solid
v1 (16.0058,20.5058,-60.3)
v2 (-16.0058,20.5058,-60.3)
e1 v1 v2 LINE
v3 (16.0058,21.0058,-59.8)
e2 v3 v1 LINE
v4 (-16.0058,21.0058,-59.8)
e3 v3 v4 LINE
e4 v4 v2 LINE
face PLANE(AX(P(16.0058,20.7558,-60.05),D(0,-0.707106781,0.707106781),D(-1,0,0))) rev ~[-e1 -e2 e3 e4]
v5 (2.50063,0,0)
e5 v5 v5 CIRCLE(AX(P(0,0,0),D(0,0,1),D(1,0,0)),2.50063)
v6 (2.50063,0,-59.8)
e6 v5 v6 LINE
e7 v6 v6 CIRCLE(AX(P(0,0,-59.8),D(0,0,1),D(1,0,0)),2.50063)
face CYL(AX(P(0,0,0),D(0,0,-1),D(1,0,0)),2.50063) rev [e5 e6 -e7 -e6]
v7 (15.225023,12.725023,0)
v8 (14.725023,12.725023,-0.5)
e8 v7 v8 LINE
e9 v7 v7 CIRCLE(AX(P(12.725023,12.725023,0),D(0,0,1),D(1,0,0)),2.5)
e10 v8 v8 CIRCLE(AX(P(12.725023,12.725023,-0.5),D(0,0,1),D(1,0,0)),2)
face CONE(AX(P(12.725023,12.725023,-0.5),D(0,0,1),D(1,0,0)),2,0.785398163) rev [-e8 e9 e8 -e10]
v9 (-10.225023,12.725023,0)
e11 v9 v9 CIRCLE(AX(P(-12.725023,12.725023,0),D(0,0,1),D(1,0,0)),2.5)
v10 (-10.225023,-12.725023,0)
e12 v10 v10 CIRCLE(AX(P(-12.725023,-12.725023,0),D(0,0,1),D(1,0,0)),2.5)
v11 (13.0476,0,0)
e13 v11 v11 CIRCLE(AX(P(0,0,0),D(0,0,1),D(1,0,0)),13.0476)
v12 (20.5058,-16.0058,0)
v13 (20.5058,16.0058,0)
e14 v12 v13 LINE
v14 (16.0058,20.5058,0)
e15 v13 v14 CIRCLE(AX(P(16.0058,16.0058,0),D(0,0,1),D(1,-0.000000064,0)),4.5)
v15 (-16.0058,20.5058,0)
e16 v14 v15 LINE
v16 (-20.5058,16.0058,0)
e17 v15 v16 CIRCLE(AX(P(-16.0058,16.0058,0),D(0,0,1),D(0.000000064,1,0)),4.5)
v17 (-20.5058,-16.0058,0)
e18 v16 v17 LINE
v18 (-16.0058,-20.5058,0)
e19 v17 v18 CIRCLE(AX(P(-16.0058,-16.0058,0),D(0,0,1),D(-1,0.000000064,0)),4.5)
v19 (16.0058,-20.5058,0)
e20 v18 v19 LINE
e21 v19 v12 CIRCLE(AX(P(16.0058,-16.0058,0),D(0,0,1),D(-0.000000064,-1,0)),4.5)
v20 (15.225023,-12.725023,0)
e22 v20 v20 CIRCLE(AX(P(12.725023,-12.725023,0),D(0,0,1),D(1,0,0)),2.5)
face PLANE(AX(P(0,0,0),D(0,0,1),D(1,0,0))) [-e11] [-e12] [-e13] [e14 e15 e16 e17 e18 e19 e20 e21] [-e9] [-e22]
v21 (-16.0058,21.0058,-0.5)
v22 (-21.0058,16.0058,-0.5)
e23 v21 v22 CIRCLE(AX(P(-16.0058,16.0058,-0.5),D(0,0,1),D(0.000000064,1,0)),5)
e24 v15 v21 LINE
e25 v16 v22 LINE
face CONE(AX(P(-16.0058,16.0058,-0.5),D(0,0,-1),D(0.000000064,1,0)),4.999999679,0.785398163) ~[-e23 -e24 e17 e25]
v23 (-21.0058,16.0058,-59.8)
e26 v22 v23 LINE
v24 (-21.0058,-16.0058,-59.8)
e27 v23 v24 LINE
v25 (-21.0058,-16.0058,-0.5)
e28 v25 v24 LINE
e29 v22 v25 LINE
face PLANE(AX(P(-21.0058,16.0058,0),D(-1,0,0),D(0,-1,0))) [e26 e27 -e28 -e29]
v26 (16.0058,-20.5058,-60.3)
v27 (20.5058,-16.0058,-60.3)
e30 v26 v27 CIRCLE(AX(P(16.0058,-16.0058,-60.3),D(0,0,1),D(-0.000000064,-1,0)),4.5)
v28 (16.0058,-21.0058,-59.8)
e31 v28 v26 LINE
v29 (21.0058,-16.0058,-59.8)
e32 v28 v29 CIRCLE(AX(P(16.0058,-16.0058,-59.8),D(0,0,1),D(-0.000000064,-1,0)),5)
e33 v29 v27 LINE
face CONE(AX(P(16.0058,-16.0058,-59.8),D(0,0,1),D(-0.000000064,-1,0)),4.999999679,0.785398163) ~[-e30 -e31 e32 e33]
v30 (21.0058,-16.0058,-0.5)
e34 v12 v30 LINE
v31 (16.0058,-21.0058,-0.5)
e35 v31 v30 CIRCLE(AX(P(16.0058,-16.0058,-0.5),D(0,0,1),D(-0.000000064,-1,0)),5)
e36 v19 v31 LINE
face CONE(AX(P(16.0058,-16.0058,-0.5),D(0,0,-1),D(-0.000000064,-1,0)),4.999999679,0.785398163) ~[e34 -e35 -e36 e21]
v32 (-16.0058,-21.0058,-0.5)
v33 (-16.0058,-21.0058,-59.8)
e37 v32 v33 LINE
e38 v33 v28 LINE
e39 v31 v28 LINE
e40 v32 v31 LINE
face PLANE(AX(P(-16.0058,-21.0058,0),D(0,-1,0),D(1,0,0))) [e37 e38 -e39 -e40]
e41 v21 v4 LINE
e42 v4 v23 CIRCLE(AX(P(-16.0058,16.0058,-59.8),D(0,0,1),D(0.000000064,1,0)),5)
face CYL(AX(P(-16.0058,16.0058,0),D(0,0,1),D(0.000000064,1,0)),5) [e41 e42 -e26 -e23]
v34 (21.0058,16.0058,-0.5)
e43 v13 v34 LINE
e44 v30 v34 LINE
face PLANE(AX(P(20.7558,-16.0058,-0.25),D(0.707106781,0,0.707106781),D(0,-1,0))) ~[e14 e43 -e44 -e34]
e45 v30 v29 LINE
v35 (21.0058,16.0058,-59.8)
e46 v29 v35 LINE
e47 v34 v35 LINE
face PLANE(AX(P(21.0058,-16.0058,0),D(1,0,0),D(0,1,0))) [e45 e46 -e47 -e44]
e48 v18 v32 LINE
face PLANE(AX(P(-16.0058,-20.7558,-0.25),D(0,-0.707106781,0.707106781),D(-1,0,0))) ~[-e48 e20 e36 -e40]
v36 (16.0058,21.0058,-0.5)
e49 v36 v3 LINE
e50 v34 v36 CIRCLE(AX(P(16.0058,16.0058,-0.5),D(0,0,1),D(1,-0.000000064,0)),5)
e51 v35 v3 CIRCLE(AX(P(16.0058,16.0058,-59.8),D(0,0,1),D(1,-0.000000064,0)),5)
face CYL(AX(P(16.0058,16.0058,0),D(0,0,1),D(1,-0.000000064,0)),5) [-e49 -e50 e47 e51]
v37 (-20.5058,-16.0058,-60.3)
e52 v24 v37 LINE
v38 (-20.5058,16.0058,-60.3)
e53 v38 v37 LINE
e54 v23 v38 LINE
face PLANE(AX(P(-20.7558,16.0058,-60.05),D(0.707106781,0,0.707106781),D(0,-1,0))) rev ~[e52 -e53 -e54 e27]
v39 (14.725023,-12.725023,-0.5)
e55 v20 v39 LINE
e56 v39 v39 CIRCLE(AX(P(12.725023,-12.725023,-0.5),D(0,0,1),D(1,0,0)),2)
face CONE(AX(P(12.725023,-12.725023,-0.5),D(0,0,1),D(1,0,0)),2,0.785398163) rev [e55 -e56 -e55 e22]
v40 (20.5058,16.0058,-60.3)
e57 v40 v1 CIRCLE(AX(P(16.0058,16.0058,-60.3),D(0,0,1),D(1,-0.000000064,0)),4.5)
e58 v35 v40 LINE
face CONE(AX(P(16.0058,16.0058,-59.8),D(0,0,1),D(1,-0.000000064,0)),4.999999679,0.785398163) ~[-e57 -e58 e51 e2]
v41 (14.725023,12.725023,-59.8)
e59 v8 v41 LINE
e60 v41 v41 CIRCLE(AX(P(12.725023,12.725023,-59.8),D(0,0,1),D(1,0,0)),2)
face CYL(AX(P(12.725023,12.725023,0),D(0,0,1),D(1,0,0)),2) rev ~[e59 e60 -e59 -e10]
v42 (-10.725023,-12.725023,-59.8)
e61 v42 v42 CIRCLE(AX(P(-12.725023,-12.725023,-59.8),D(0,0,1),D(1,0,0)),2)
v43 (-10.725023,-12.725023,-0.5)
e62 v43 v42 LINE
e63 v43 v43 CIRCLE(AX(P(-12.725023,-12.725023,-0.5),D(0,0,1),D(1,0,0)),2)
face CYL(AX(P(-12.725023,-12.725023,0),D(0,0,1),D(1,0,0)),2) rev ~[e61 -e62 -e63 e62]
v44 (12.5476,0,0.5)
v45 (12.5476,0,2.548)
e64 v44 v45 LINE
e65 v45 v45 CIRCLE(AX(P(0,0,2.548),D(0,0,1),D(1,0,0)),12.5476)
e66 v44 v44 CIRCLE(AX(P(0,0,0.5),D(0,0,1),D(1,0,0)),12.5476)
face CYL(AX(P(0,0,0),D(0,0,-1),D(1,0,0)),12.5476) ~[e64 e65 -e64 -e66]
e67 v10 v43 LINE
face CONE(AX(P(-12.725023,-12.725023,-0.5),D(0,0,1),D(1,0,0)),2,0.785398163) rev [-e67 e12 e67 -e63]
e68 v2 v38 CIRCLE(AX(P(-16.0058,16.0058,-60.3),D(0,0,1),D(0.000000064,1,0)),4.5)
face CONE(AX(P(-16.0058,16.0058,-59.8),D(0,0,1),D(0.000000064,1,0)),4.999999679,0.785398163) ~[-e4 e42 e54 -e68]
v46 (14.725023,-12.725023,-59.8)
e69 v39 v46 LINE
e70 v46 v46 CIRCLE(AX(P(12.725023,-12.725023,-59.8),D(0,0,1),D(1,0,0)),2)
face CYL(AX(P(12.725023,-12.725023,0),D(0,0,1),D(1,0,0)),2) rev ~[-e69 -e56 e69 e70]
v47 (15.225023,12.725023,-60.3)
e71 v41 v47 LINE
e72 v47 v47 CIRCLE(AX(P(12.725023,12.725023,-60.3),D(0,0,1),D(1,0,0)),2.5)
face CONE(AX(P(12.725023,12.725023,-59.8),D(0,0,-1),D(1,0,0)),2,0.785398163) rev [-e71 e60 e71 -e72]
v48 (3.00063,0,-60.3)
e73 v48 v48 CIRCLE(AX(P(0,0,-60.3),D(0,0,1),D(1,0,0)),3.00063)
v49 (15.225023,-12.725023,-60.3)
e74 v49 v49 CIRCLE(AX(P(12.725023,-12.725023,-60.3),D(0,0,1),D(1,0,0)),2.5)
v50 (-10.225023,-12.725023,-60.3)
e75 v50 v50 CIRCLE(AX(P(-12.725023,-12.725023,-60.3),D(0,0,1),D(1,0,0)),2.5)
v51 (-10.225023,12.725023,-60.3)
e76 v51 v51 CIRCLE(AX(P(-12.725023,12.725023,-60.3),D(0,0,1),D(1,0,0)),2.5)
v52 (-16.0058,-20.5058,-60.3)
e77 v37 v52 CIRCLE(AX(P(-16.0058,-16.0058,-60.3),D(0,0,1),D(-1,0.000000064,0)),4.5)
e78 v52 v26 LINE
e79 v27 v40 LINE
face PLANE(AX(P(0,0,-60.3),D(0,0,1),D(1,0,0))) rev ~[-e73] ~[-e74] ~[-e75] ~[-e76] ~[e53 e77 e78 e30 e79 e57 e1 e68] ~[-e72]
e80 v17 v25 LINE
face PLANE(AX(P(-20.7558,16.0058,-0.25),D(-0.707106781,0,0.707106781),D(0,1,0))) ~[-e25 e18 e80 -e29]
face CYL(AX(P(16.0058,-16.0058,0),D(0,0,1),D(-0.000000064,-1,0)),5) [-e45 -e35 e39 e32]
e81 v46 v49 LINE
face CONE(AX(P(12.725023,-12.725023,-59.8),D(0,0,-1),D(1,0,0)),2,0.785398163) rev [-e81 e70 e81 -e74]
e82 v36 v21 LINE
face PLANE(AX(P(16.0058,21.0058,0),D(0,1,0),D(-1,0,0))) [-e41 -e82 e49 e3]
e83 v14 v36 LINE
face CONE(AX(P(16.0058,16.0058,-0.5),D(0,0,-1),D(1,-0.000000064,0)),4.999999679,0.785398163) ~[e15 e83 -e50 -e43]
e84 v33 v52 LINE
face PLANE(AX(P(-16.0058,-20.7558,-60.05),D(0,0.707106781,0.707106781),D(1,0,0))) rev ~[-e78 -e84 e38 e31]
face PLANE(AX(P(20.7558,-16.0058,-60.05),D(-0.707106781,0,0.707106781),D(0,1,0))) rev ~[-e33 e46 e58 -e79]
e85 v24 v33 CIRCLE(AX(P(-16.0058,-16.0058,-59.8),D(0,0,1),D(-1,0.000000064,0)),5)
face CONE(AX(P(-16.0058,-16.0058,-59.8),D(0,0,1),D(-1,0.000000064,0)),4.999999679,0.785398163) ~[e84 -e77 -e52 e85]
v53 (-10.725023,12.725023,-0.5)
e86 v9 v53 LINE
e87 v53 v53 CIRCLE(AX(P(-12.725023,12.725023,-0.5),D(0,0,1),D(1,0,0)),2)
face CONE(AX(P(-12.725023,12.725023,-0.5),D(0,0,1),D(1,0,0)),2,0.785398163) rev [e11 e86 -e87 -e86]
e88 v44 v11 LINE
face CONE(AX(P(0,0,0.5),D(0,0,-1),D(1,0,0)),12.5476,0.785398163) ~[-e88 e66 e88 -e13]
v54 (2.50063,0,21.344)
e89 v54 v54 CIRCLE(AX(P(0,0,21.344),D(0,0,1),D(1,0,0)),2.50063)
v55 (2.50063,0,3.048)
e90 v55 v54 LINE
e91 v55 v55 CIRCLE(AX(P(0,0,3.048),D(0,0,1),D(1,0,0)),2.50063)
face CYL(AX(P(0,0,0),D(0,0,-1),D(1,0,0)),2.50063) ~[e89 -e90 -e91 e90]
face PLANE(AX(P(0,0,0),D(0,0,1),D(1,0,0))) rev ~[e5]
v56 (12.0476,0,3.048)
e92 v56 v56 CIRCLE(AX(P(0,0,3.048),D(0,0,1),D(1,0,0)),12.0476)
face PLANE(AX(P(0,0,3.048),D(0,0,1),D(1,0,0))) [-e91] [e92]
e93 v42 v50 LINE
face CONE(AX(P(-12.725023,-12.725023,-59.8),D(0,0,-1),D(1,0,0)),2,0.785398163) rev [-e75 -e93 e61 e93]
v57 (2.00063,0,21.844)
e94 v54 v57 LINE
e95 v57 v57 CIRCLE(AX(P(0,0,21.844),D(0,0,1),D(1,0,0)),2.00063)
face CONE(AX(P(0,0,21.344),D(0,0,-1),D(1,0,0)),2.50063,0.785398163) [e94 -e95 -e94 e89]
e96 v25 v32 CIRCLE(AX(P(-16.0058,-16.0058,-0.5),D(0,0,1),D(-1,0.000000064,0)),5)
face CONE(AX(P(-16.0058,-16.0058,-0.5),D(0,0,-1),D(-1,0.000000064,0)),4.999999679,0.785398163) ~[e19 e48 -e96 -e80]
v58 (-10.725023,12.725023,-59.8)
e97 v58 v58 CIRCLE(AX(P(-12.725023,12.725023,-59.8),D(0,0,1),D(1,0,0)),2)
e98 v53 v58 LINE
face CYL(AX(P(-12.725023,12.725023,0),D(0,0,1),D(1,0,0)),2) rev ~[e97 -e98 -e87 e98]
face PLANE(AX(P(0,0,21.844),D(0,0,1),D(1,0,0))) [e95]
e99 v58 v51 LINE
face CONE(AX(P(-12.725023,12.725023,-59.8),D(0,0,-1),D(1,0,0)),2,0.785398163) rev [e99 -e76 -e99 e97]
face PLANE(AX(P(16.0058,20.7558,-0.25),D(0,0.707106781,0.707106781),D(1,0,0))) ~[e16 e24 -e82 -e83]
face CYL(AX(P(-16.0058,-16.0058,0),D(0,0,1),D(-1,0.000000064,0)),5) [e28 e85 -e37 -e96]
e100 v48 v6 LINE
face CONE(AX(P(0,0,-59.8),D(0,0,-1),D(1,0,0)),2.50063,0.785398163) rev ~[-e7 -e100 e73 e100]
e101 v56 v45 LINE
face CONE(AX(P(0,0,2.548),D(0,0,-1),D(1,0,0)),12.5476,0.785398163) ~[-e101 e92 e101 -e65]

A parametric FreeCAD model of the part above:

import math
import FreeCAD as App
import Part
import Sketcher
Q = App.Units.Quantity


def edges_at(feature, points):
    """Names of the edges that pass closest to the given points."""
    edges = feature.Shape.Edges
    near = lambda p: min(range(len(edges)), key=lambda i: edges[i].distToShape(Part.Vertex(*p))[0])
    return sorted({f"Edge{near(p) + 1}" for p in points})

doc = App.newDocument("Part")
body = doc.addObject("PartDesign::Body", "Body")

sketch1 = body.newObject("Sketcher::SketchObject", "Sketch")
sketch1.AttachmentSupport = (doc.getObject("XY_Plane"), [""])
sketch1.MapMode = "FlatFace"
sketch1.addGeometry(Part.ArcOfCircle(Part.Circle(App.Vector(16, 16, 0), App.Vector(0, 0, 1), 5), math.radians(0), math.radians(90)), False)
sketch1.addGeometry(Part.LineSegment(App.Vector(16, 21, 0), App.Vector(-16, 21, 0)), False)
sketch1.addGeometry(Part.ArcOfCircle(Part.Circle(App.Vector(-16, 16, 0), App.Vector(0, 0, 1), 5), math.radians(90), math.radians(180)), False)
sketch1.addGeometry(Part.LineSegment(App.Vector(-21, 16, 0), App.Vector(-21, -16, 0)), False)
sketch1.addGeometry(Part.ArcOfCircle(Part.Circle(App.Vector(-16, -16, 0), App.Vector(0, 0, 1), 5), math.radians(180), math.radians(270)), False)
sketch1.addGeometry(Part.LineSegment(App.Vector(-16, -21, 0), App.Vector(16, -21, 0)), False)
sketch1.addGeometry(Part.ArcOfCircle(Part.Circle(App.Vector(16, -16, 0), App.Vector(0, 0, 1), 5), math.radians(-90), math.radians(0)), False)
sketch1.addGeometry(Part.LineSegment(App.Vector(21, -16, 0), App.Vector(21, 16, 0)), False)
sketch1.addGeometry(Part.Circle(App.Vector(-12.7, -12.7, 0), App.Vector(0, 0, 1), 2), False)
sketch1.addGeometry(Part.Circle(App.Vector(12.7, -12.7, 0), App.Vector(0, 0, 1), 2), False)
sketch1.addGeometry(Part.Circle(App.Vector(-12.7, 12.7, 0), App.Vector(0, 0, 1), 2), False)
sketch1.addGeometry(Part.Circle(App.Vector(0, 0, 0), App.Vector(0, 0, 1), 2.5), False)
sketch1.addGeometry(Part.Circle(App.Vector(12.7, 12.7, 0), App.Vector(0, 0, 1), 2), False)
sketch1.addConstraint(Sketcher.Constraint("Tangent", 0, 2, 1, 1))
sketch1.addConstraint(Sketcher.Constraint("Tangent", 1, 2, 2, 1))
sketch1.addConstraint(Sketcher.Constraint("Tangent", 2, 2, 3, 1))
sketch1.addConstraint(Sketcher.Constraint("Tangent", 3, 2, 4, 1))
sketch1.addConstraint(Sketcher.Constraint("Tangent", 4, 2, 5, 1))
sketch1.addConstraint(Sketcher.Constraint("Tangent", 5, 2, 6, 1))
sketch1.addConstraint(Sketcher.Constraint("Tangent", 6, 2, 7, 1))
sketch1.addConstraint(Sketcher.Constraint("Tangent", 7, 2, 0, 1))
sketch1.addConstraint(Sketcher.Constraint("Horizontal", 1))
sketch1.addConstraint(Sketcher.Constraint("Vertical", 3))
sketch1.addConstraint(Sketcher.Constraint("Horizontal", 5))
sketch1.addConstraint(Sketcher.Constraint("Vertical", 7))
sketch1.addConstraint(Sketcher.Constraint("Coincident", 11, 3, -1, 1))
sketch1.addConstraint(Sketcher.Constraint("Equal", 0, 2))
sketch1.addConstraint(Sketcher.Constraint("Equal", 2, 4))
sketch1.addConstraint(Sketcher.Constraint("Equal", 4, 6))
sketch1.addConstraint(Sketcher.Constraint("Equal", 8, 9))
sketch1.addConstraint(Sketcher.Constraint("Equal", 9, 10))
sketch1.addConstraint(Sketcher.Constraint("Equal", 10, 12))
sketch1.addConstraint(Sketcher.Constraint("Symmetric", 0, 3, 4, 3, -1, 1))
sketch1.addConstraint(Sketcher.Constraint("Symmetric", 9, 3, 10, 3, -1, 1))
sketch1.addConstraint(Sketcher.Constraint("Symmetric", 8, 3, 12, 3, -1, 1))
sketch1.addConstraint(Sketcher.Constraint("Symmetric", 8, 3, 9, 3, -2))
sketch1.addConstraint(Sketcher.Constraint("Equal", 5, 3))
sketch1.addConstraint(Sketcher.Constraint("Diameter", 8, Q("4 mm")))
sketch1.addConstraint(Sketcher.Constraint("Radius", 0, Q("5 mm")))
sketch1.addConstraint(Sketcher.Constraint("Diameter", 11, Q("5.00126 mm")))
sketch1.addConstraint(Sketcher.Constraint("DistanceX", 1, 2, 1, 1, Q("32.0116 mm")))
sketch1.addConstraint(Sketcher.Constraint("DistanceX", 8, 3, -1, 1, Q("12.725023 mm")))
sketch1.addConstraint(Sketcher.Constraint("DistanceY", 8, 3, -1, 1, Q("12.725023 mm")))
pad1 = body.newObject("PartDesign::Pad", "Pad")
pad1.Profile = sketch1
pad1.Length = 60.3
pad1.Reversed = True

sketch2 = body.newObject("Sketcher::SketchObject", "Sketch001")
sketch2.AttachmentSupport = (doc.getObject("XY_Plane"), [""])
sketch2.MapMode = "FlatFace"
sketch2.addGeometry(Part.Circle(App.Vector(0, 0, 0), App.Vector(0, 0, 1), 12.5), False)
sketch2.addGeometry(Part.Circle(App.Vector(0, 0, 0), App.Vector(0, 0, 1), 2.5), False)
sketch2.addConstraint(Sketcher.Constraint("Coincident", 0, 3, -1, 1))
sketch2.addConstraint(Sketcher.Constraint("Coincident", 1, 3, -1, 1))
sketch2.addConstraint(Sketcher.Constraint("Diameter", 0, Q("25.0952 mm")))
sketch2.addConstraint(Sketcher.Constraint("Diameter", 1, Q("5.00126 mm")))
pad2 = body.newObject("PartDesign::Pad", "Pad001")
pad2.Profile = sketch2
pad2.Length = 3.048

sketch3 = body.newObject("Sketcher::SketchObject", "Sketch002")
sketch3.AttachmentSupport = (doc.getObject("XY_Plane"), [""])
sketch3.MapMode = "FlatFace"
sketch3.addGeometry(Part.Circle(App.Vector(0, 0, 0), App.Vector(0, 0, 1), 2.5), False)
sketch3.addConstraint(Sketcher.Constraint("Coincident", 0, 3, -1, 1))
sketch3.addConstraint(Sketcher.Constraint("Diameter", 0, Q("5.00126 mm")))
pad3 = body.newObject("PartDesign::Pad", "Pad002")
pad3.Profile = sketch3
pad3.Length = 21.844
doc.recompute()

chamfer = body.newObject("PartDesign::Chamfer", "Chamfer")
chamfer.Base = (pad3, edges_at(pad3, [
    (-2.501, 0, 21.844),
    (-12.548, 0, 3.048),
    (-14.725, -12.725, 0),
    (-14.725, 12.725, 0),
    (10.725, 12.725, 0),
    (10.725, -12.725, 0),
    (19.541, 19.541, 0),
    (21.006, 0, 0),
    (0, 21.006, 0),
    (19.541, -19.541, 0),
    (-19.541, 19.541, 0),
    (0, -21.006, 0),
    (-21.006, 0, 0),
    (-19.541, -19.541, 0),
    (-12.548, 0, 0),
    (19.541, 19.541, -60.3),
    (0, 21.006, -60.3),
    (-19.541, 19.541, -60.3),
    (-21.006, 0, -60.3),
    (-19.541, -19.541, -60.3),
    (0, -21.006, -60.3),
    (19.541, -19.541, -60.3),
    (21.006, 0, -60.3),
    (-14.725, -12.725, -60.3),
    (10.725, -12.725, -60.3),
    (-14.725, 12.725, -60.3),
    (10.725, 12.725, -60.3),
    (-2.501, 0, -60.3),
]))
chamfer.Size = 0.5

doc.recompute()
